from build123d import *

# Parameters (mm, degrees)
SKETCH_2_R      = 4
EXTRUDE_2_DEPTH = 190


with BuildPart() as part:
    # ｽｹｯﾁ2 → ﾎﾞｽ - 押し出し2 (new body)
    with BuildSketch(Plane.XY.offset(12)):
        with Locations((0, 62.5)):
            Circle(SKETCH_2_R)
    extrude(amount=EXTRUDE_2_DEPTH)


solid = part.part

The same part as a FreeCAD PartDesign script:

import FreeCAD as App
import Part
import Sketcher
from FreeCAD import Vector

doc = App.newDocument("Part")
body = doc.addObject("PartDesign::Body", "Body")

# Sketch on XY plane
sketch1 = body.newObject("Sketcher::SketchObject", "Sketch")
sketch1.AttachmentSupport = (doc.getObject("XY_Plane"), [""])
sketch1.MapMode = "FlatFace"
sketch1.AttachmentOffset = App.Placement(Vector(0, 0, 12), App.Rotation())
sketch1.addGeometry(Part.Circle(Vector(0, 62.5, 0), Vector(0, 0, 1), 4), False)
sketch1.addConstraint(Sketcher.Constraint("PointOnObject", 0, 3, -2))
sketch1.addConstraint(Sketcher.Constraint("Diameter", 0, 8.0))
sketch1.addConstraint(Sketcher.Constraint("DistanceY", -1, 1, 0, 3, 62.5))
pad1 = body.newObject("PartDesign::Pad", "Pad")
pad1.Profile = sketch1
pad1.Length = 190

doc.recompute()
